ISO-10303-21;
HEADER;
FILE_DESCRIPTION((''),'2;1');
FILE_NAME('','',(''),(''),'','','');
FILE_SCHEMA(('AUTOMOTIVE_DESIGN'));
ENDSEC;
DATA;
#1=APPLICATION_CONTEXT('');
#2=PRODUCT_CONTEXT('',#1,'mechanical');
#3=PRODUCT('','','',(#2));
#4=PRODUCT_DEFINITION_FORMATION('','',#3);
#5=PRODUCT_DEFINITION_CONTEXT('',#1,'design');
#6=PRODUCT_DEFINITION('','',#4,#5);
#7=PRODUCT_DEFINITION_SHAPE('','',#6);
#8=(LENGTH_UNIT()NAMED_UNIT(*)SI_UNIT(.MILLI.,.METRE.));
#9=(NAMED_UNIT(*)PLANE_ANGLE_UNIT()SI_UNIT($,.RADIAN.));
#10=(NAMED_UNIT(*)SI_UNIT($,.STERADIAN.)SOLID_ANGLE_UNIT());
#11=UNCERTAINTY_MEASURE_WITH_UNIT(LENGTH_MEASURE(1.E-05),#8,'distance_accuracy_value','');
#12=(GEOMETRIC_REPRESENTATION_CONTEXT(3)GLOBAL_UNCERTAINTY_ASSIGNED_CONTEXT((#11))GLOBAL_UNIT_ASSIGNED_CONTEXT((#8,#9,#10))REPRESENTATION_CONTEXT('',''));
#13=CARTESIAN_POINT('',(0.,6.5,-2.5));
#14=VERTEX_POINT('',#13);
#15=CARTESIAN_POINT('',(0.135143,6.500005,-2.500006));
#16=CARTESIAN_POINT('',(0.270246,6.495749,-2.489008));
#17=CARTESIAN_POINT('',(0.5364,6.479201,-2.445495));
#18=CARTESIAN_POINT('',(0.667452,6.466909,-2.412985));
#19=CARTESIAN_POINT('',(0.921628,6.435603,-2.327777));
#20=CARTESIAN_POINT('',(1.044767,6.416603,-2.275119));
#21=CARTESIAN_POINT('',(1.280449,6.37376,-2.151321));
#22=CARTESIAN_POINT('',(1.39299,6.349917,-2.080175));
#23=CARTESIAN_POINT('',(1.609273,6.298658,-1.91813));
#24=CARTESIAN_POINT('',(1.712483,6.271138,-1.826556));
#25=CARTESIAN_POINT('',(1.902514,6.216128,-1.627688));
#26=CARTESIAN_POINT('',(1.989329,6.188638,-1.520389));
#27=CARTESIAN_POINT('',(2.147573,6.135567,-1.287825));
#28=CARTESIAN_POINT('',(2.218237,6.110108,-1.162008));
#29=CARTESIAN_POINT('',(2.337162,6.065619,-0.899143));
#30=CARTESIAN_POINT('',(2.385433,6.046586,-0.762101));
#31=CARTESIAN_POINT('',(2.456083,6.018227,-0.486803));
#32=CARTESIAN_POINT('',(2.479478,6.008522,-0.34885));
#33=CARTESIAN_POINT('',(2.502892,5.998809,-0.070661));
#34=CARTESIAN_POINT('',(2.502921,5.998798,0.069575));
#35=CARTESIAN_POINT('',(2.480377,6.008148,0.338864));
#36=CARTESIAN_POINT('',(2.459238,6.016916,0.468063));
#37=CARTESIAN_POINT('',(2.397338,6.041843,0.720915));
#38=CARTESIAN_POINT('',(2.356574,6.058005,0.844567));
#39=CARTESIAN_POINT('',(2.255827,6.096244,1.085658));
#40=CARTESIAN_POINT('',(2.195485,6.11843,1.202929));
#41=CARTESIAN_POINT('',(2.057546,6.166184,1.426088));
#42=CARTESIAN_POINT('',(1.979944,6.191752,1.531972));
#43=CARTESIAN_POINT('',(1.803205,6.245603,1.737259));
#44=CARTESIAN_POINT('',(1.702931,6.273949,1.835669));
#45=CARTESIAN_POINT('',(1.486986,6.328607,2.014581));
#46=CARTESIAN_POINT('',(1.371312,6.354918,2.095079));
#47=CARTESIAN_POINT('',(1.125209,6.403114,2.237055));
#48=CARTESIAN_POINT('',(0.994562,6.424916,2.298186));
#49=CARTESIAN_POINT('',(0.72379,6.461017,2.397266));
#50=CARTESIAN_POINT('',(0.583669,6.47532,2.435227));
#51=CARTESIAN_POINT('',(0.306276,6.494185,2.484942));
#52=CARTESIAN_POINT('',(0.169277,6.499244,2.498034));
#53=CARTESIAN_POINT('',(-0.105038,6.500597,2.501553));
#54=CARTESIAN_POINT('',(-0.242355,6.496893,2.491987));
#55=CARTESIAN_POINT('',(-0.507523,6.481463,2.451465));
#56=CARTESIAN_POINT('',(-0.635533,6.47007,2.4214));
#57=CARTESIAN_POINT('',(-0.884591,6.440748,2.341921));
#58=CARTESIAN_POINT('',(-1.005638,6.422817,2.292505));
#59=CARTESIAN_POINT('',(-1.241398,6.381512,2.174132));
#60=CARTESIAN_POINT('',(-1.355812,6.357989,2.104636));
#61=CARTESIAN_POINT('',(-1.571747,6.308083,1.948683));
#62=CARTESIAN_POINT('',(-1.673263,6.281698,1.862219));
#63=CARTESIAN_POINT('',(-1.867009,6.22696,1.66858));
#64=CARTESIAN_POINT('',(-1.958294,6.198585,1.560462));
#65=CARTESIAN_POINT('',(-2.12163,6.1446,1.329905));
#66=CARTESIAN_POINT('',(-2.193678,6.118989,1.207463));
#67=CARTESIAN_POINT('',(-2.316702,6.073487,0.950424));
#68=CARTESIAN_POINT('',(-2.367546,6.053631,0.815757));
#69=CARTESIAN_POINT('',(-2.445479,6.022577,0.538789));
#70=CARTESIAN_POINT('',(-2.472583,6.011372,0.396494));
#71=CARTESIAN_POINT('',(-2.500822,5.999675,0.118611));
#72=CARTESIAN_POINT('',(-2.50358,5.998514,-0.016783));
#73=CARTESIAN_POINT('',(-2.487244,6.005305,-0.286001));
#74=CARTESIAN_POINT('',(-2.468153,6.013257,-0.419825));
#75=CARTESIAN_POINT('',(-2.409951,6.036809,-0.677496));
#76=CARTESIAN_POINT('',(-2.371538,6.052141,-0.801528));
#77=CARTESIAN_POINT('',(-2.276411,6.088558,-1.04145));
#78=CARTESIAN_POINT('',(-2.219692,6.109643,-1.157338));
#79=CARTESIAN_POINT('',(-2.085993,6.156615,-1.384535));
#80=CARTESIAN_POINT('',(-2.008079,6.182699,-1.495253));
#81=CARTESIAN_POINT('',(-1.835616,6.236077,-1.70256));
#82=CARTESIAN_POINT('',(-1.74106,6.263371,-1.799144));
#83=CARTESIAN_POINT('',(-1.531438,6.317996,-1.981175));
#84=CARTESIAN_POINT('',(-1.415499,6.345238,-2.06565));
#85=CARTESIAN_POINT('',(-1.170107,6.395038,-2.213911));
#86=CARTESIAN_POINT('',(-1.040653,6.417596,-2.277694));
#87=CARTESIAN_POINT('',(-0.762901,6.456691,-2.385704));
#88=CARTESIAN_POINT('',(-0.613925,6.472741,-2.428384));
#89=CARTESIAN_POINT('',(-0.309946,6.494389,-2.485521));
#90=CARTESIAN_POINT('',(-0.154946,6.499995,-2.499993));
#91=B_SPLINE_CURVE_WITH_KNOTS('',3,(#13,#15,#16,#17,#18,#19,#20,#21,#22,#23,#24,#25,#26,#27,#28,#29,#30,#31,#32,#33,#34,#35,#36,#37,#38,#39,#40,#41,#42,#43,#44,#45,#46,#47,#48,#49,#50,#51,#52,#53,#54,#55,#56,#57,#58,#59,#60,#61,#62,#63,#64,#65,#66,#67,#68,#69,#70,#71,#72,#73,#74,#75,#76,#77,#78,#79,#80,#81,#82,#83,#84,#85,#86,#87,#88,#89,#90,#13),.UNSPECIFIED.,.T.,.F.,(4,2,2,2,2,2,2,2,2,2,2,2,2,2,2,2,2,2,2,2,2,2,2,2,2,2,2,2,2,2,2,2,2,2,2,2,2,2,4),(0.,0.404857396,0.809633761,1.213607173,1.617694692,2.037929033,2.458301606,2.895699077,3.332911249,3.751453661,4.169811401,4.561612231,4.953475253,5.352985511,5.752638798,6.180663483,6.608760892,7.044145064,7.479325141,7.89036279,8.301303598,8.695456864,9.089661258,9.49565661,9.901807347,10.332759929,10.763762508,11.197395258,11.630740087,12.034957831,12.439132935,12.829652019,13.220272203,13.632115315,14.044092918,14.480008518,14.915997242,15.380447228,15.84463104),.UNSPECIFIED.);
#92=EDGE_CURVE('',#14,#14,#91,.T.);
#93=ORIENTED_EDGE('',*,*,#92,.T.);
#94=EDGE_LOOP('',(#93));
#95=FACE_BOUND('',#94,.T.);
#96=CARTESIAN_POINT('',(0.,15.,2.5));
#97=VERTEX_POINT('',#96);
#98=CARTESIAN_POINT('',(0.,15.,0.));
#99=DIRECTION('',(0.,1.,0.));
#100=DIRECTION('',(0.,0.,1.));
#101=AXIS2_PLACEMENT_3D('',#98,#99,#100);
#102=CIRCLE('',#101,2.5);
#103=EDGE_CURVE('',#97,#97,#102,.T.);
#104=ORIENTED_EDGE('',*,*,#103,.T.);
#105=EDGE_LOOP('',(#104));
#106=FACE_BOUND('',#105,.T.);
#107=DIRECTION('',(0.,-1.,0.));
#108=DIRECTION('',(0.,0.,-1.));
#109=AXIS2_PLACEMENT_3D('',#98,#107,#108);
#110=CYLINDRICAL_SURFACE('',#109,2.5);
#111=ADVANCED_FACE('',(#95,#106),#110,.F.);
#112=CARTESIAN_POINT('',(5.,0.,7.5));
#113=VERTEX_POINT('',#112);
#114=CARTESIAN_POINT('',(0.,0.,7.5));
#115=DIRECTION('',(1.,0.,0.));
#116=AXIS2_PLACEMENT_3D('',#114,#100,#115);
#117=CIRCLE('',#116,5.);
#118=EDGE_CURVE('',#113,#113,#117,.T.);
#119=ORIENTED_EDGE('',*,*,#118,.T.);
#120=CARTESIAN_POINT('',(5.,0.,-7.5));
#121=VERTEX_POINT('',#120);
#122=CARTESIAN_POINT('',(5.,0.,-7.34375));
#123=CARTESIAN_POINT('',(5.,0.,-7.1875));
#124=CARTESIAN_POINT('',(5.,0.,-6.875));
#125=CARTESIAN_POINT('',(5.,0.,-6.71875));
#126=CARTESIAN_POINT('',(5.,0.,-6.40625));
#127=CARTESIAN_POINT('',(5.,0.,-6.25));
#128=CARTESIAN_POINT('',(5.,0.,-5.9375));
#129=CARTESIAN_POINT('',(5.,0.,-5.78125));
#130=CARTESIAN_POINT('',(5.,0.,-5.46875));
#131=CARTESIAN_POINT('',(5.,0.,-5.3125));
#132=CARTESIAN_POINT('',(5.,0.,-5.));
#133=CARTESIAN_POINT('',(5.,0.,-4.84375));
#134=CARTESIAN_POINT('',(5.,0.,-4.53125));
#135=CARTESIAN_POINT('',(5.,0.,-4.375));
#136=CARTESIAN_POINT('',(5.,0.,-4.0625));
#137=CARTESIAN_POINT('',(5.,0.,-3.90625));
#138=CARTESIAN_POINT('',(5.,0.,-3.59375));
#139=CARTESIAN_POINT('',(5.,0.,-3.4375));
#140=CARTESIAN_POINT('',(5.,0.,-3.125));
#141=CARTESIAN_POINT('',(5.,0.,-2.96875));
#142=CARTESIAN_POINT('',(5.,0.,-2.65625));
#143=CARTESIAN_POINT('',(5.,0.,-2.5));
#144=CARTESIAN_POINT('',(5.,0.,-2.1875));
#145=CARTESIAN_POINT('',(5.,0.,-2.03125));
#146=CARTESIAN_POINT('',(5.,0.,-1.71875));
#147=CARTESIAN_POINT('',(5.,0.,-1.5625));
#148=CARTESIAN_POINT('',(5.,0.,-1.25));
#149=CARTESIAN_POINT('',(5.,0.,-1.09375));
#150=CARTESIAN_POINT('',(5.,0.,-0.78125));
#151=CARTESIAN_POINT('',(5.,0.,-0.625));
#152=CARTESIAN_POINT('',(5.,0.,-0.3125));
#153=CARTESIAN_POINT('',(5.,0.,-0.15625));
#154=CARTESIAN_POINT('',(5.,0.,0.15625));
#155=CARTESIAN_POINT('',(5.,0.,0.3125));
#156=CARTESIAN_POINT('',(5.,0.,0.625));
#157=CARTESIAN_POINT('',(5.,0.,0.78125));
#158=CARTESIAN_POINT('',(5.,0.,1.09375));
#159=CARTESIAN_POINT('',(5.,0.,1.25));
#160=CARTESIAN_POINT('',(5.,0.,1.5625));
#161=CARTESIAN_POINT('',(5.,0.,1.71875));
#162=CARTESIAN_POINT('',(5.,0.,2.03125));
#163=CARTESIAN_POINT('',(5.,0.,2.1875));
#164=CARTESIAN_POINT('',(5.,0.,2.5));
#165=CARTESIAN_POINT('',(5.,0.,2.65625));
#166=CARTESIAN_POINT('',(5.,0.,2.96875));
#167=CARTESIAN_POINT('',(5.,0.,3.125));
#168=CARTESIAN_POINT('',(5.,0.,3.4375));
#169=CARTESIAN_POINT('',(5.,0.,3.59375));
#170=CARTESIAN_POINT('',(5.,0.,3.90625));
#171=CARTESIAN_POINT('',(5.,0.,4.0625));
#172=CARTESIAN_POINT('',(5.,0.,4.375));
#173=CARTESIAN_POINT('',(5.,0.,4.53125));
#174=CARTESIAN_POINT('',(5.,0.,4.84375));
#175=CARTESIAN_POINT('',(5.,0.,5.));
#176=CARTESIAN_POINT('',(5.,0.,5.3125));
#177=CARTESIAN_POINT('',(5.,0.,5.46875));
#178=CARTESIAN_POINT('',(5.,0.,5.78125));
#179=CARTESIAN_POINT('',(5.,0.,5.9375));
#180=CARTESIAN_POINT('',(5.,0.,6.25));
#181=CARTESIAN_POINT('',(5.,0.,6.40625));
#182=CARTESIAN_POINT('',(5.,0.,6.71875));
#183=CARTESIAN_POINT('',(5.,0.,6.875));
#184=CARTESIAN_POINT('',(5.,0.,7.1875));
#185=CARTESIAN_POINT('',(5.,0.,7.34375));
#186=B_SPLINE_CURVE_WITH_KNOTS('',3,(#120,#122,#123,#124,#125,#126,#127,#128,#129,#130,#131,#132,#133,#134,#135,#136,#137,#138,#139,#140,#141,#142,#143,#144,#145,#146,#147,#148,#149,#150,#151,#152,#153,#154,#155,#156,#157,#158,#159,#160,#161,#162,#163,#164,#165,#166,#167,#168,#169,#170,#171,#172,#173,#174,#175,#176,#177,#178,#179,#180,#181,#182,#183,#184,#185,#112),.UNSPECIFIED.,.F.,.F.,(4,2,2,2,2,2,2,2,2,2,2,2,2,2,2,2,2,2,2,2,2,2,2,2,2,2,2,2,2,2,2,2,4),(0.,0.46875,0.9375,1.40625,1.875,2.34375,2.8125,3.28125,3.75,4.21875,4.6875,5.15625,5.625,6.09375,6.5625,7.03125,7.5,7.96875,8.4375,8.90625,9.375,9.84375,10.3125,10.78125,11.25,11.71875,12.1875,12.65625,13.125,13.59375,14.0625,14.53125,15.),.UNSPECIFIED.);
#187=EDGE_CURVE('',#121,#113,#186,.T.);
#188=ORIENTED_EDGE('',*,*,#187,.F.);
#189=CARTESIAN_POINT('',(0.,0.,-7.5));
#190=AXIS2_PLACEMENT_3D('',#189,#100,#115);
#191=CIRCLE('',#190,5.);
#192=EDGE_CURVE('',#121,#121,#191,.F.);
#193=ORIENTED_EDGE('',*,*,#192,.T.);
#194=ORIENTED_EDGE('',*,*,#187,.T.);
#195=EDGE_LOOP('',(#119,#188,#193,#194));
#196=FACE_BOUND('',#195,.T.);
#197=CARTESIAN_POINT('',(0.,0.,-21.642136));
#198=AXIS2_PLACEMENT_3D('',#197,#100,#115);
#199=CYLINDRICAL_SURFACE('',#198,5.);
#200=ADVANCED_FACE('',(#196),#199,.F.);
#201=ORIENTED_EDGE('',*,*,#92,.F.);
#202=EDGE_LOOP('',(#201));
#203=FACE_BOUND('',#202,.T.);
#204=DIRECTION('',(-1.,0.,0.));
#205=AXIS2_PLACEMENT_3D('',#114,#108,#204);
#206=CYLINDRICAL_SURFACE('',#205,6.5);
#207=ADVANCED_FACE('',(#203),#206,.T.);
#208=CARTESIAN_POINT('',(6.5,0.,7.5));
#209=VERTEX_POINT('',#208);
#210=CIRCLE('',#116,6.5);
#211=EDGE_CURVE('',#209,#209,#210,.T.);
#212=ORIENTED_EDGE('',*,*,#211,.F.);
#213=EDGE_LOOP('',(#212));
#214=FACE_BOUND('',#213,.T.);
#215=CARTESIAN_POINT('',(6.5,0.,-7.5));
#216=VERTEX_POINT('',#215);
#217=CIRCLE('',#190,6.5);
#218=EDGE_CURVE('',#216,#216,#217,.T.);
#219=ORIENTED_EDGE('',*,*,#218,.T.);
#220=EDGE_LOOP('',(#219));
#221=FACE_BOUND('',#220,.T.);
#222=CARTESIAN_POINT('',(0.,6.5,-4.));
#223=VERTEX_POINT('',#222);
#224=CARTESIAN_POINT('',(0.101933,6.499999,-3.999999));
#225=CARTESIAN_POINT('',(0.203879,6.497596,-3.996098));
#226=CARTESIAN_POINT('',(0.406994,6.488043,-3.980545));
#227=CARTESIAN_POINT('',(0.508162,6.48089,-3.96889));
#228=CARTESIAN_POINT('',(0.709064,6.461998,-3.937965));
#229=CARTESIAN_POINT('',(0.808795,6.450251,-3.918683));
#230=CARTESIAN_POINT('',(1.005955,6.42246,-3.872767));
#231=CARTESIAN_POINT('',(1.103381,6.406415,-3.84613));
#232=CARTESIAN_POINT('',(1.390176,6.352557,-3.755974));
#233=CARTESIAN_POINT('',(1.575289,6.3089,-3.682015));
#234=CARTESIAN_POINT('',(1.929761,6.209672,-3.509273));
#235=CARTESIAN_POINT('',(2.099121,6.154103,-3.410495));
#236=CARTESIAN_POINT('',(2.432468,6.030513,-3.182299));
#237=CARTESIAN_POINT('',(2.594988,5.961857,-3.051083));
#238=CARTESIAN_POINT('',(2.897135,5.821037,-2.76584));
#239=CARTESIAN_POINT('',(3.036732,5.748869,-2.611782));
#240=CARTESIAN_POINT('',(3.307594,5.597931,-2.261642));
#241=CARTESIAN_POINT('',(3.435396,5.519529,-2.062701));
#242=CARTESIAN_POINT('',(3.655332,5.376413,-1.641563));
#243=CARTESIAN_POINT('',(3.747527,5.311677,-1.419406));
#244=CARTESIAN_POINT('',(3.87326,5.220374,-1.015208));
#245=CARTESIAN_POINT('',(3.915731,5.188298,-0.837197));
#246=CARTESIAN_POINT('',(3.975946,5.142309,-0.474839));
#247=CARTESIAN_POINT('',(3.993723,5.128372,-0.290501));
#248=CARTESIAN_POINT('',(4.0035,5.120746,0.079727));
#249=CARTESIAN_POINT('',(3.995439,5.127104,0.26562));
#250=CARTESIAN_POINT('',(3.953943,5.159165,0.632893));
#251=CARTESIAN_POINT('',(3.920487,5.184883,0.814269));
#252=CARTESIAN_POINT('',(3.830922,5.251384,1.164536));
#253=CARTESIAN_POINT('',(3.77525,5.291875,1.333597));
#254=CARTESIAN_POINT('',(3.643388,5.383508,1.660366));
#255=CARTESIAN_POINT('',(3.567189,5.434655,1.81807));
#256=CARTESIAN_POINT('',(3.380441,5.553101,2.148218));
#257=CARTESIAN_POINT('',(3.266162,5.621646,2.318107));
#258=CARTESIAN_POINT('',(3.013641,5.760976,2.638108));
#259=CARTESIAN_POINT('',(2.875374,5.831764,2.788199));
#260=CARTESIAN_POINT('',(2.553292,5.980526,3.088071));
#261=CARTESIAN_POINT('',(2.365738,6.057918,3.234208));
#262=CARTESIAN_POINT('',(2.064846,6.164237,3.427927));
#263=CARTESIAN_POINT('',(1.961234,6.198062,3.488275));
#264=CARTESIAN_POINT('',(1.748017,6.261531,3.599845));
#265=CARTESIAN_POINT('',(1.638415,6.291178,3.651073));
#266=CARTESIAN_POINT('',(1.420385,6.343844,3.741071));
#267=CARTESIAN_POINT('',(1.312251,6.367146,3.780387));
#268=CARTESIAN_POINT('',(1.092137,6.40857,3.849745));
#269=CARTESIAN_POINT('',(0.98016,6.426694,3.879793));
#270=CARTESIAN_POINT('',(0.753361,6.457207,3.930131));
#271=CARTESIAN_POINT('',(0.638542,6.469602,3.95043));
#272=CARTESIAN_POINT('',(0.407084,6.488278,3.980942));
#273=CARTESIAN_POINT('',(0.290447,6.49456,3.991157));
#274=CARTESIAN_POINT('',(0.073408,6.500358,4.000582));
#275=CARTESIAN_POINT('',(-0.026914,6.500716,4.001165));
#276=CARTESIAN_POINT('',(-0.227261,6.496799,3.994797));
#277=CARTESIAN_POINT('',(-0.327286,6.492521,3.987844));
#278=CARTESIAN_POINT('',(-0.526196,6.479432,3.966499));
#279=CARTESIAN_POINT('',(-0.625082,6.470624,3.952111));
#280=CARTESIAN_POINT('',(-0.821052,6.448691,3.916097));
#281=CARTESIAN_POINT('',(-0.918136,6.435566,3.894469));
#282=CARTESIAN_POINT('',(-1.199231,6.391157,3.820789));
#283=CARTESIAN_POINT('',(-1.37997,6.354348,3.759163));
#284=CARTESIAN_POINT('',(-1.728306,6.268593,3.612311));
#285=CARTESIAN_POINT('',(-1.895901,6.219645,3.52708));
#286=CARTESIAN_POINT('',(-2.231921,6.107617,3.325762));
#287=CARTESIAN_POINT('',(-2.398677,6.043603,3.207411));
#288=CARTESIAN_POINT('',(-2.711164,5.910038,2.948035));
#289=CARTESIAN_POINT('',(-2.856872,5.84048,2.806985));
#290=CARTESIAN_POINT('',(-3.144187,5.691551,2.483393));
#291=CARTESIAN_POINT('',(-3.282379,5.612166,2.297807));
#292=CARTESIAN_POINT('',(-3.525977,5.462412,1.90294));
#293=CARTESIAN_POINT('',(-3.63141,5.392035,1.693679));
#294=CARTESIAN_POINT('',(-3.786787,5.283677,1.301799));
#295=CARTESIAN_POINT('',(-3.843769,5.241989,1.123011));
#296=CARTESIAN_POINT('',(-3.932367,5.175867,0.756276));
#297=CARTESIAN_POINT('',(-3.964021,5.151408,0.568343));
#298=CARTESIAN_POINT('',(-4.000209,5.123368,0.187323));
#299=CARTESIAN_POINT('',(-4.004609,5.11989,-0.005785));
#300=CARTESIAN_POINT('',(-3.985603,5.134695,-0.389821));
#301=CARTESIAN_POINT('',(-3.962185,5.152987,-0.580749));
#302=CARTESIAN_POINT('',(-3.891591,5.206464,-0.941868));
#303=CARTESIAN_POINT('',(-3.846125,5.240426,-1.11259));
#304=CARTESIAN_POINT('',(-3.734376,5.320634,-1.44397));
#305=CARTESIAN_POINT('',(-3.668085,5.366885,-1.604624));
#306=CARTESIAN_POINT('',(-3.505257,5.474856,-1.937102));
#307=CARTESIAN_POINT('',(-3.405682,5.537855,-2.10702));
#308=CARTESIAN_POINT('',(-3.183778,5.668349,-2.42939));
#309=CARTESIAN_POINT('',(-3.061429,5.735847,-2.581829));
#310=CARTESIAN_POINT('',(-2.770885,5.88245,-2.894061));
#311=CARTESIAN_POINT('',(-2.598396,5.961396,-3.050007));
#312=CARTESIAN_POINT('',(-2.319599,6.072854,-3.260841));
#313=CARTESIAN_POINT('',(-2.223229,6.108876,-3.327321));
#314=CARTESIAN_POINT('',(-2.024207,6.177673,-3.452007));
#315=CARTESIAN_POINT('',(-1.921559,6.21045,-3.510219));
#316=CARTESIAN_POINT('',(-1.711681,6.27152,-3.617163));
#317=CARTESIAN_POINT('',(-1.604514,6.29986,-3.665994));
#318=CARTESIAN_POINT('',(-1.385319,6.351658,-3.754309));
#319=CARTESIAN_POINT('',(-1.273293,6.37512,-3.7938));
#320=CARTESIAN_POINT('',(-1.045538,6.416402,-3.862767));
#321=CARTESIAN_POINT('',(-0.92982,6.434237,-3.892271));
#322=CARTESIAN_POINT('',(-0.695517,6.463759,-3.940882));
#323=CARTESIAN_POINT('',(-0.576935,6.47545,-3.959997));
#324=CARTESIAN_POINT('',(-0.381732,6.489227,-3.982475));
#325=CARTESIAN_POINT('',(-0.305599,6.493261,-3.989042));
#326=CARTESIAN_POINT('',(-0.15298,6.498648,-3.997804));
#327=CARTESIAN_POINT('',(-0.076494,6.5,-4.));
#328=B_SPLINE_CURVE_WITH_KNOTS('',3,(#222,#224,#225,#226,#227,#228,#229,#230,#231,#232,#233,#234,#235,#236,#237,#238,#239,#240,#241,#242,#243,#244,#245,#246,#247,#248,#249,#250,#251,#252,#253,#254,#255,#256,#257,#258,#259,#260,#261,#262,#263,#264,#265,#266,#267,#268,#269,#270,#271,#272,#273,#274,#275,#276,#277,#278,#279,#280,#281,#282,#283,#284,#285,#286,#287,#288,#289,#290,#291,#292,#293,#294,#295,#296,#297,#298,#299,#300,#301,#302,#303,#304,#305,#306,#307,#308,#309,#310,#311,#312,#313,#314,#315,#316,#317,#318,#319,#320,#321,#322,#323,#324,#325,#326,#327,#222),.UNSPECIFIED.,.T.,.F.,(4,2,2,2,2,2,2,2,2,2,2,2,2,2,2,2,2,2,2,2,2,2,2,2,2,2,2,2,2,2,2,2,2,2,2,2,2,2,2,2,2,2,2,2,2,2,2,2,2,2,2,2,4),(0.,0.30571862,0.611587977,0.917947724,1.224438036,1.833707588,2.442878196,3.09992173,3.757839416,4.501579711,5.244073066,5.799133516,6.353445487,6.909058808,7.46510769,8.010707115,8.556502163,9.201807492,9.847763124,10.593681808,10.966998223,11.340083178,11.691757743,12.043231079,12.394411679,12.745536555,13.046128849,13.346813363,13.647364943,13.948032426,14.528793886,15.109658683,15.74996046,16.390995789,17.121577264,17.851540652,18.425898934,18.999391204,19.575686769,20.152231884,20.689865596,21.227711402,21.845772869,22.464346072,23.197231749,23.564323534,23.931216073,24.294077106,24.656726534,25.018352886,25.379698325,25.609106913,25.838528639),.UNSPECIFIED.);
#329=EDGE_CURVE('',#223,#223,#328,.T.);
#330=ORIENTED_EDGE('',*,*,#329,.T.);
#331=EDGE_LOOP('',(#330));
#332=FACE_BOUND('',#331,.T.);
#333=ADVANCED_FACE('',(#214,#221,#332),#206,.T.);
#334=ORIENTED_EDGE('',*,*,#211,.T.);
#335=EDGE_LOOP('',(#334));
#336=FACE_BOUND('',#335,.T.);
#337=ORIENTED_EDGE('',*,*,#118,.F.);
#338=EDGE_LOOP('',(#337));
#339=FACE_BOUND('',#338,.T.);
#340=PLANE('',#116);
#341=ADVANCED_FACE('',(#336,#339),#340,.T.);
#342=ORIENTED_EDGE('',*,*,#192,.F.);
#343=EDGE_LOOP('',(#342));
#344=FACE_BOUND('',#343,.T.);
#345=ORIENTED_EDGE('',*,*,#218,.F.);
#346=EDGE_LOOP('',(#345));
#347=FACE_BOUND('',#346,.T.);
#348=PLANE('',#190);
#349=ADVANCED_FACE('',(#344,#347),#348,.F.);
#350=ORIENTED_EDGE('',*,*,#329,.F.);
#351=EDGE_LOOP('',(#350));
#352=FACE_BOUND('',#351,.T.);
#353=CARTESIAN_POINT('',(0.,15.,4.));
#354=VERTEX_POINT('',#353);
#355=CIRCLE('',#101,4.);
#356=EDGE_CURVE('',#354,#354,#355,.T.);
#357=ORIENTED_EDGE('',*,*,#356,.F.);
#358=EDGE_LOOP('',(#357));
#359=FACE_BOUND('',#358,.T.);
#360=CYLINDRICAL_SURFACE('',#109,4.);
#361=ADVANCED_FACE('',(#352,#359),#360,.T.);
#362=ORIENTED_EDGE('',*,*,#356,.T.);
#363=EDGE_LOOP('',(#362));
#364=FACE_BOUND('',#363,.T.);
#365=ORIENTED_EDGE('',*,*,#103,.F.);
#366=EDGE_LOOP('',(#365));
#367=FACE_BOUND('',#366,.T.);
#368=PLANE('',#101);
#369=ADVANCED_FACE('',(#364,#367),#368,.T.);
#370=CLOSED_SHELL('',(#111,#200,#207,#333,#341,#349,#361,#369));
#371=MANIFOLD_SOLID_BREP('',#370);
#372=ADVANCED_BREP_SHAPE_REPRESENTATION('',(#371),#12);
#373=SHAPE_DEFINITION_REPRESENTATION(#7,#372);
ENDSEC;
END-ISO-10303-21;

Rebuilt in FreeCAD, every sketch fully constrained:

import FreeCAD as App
import Part
import Sketcher

V = App.Vector

doc = App.newDocument("Part")
body = doc.addObject("PartDesign::Body", "Body")

# Sketch on XZ plane
sketch1 = doc.addObject("Sketcher::SketchObject", "Sketch")
body.addObject(sketch1)
sketch1.AttachmentSupport = (doc.XZ_Plane, [""])
sketch1.MapMode = "FlatFace"
sketch1.addGeometry(Part.Circle(V(0, 0, 0), V(0, 0, 1), 4), False)
sketch1.addGeometry(Part.Circle(V(0, 0, 0), V(0, 0, 1), 2.5), False)
sketch1.addConstraint(Sketcher.Constraint("Coincident", 0, 3, -1, 1))
sketch1.addConstraint(Sketcher.Constraint("Coincident", 1, 3, -1, 1))
sketch1.addConstraint(Sketcher.Constraint("Diameter", 0, 8.0))
sketch1.addConstraint(Sketcher.Constraint("Diameter", 1, 5.0))
pad1 = doc.addObject("PartDesign::Pad", "Pad")
body.addObject(pad1)
pad1.Profile = sketch1
pad1.Length = 15
pad1.Reversed = True

# Sketch on XY plane
sketch2 = doc.addObject("Sketcher::SketchObject", "Sketch001")
body.addObject(sketch2)
sketch2.AttachmentSupport = (doc.XY_Plane, [""])
sketch2.MapMode = "FlatFace"
sketch2.addGeometry(Part.Circle(V(0, 0, 0), V(0, 0, 1), 6), False)
sketch2.addConstraint(Sketcher.Constraint("Coincident", 0, 3, -1, 1))
sketch2.addConstraint(Sketcher.Constraint("Diameter", 0, 13.0))
pad2 = doc.addObject("PartDesign::Pad", "Pad001")
body.addObject(pad2)
pad2.Profile = sketch2
pad2.Length = 15
pad2.Midplane = True

# Sketch on XY plane
sketch3 = doc.addObject("Sketcher::SketchObject", "Sketch002")
body.addObject(sketch3)
sketch3.AttachmentSupport = (doc.XY_Plane, [""])
sketch3.MapMode = "FlatFace"
sketch3.AttachmentOffset = App.Placement(V(0, 0, 7.5), App.Rotation())
sketch3.addGeometry(Part.Circle(V(0, 0, 0), V(0, 0, 1), 5), False)
sketch3.addConstraint(Sketcher.Constraint("Coincident", 0, 3, -1, 1))
sketch3.addConstraint(Sketcher.Constraint("Diameter", 0, 10.0))
pocket1 = doc.addObject("PartDesign::Pocket", "Pocket")
body.addObject(pocket1)
pocket1.Profile = sketch3
pocket1.Length = 15

doc.recompute()
